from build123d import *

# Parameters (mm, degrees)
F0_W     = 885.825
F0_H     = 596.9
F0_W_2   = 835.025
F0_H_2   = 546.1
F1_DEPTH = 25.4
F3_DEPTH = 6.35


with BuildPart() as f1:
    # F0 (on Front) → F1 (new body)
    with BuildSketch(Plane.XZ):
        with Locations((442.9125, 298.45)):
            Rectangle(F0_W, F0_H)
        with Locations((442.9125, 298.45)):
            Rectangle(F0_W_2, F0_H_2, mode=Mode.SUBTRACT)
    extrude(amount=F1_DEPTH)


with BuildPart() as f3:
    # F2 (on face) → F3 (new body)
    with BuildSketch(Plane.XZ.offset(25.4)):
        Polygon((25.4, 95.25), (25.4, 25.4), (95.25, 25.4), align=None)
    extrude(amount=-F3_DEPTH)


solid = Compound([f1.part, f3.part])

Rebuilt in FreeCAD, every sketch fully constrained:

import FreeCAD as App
import Part
import Sketcher
from FreeCAD import Vector
Q = App.Units.Quantity

doc = App.newDocument("Part")
params = doc.addObject("Spreadsheet::Sheet", "Params")
for row, (alias, value) in enumerate([
    ("sketch1_height", "23.5 in"),
    ("sketch1_height2", "21.5 in"),
    ("sketch1_width", "34.875 in"),
    ("pad1_length", "1 in"),
    ("sketch2_width", "2.75 in"),
    ("pad2_length", "0.25 in"),
], start=1):
    params.set(f"A{row}", alias)
    params.set(f"B{row}", "=" + value)
    params.setAlias(f"B{row}", alias)

body = doc.addObject("PartDesign::Body", "Body")

sketch1 = body.newObject("Sketcher::SketchObject", "Sketch")
sketch1.AttachmentSupport = (doc.getObject("XZ_Plane"), [""])
sketch1.MapMode = "FlatFace"
sketch1.addGeometry(Part.LineSegment(Vector(0, 596.9, 0), Vector(0, 0, 0)), False)
sketch1.addGeometry(Part.LineSegment(Vector(0, 0, 0), Vector(885.825, 0, 0)), False)
sketch1.addGeometry(Part.LineSegment(Vector(885.825, 0, 0), Vector(885.825, 596.9, 0)), False)
sketch1.addGeometry(Part.LineSegment(Vector(885.825, 596.9, 0), Vector(0, 596.9, 0)), False)
sketch1.addGeometry(Part.LineSegment(Vector(860.425, 25.4, 0), Vector(25.4, 25.4, 0)), False)
sketch1.addGeometry(Part.LineSegment(Vector(25.4, 25.4, 0), Vector(25.4, 571.5, 0)), False)
sketch1.addGeometry(Part.LineSegment(Vector(25.4, 571.5, 0), Vector(860.425, 571.5, 0)), False)
sketch1.addGeometry(Part.LineSegment(Vector(860.425, 571.5, 0), Vector(860.425, 25.4, 0)), False)
sketch1.addConstraint(Sketcher.Constraint("Coincident", 0, 2, 1, 1))
sketch1.addConstraint(Sketcher.Constraint("Coincident", 1, 2, 2, 1))
sketch1.addConstraint(Sketcher.Constraint("Coincident", 2, 2, 3, 1))
sketch1.addConstraint(Sketcher.Constraint("Coincident", 3, 2, 0, 1))
sketch1.addConstraint(Sketcher.Constraint("Coincident", 4, 2, 5, 1))
sketch1.addConstraint(Sketcher.Constraint("Coincident", 5, 2, 6, 1))
sketch1.addConstraint(Sketcher.Constraint("Coincident", 6, 2, 7, 1))
sketch1.addConstraint(Sketcher.Constraint("Coincident", 7, 2, 4, 1))
sketch1.addConstraint(Sketcher.Constraint("Vertical", 0))
sketch1.addConstraint(Sketcher.Constraint("Horizontal", 1))
sketch1.addConstraint(Sketcher.Constraint("Vertical", 2))
sketch1.addConstraint(Sketcher.Constraint("Horizontal", 3))
sketch1.addConstraint(Sketcher.Constraint("Horizontal", 4))
sketch1.addConstraint(Sketcher.Constraint("Vertical", 5))
sketch1.addConstraint(Sketcher.Constraint("Horizontal", 6))
sketch1.addConstraint(Sketcher.Constraint("Vertical", 7))
sketch1.addConstraint(Sketcher.Constraint("Coincident", 0, 2, -1, 1))
sketch1.addConstraint(Sketcher.Constraint("DistanceY", 0, 2, 0, 1, Q("23.5 in")))
sketch1.addConstraint(Sketcher.Constraint("DistanceY", 5, 1, 5, 2, Q("21.5 in")))
sketch1.addConstraint(Sketcher.Constraint("DistanceX", -1, 1, 4, 2, Q("1 in")))
sketch1.addConstraint(Sketcher.Constraint("DistanceY", -1, 1, 4, 2, Q("1 in")))
sketch1.addConstraint(Sketcher.Constraint("DistanceX", 6, 2, 2, 2, Q("1 in")))
sketch1.addConstraint(Sketcher.Constraint("DistanceX", 1, 1, 1, 2, Q("34.875 in")))
sketch1.setExpression("Constraints[17]", "Params.sketch1_height")
sketch1.setExpression("Constraints[18]", "Params.sketch1_height2")
sketch1.setExpression("Constraints[22]", "Params.sketch1_width")
pad1 = body.newObject("PartDesign::Pad", "Pad")
pad1.Profile = sketch1
pad1.setExpression("Length", "Params.pad1_length")
body2 = doc.addObject("PartDesign::Body", "Body001")

sketch2 = body2.newObject("Sketcher::SketchObject", "Sketch001")
sketch2.AttachmentSupport = (doc.getObject("XZ_Plane001"), [""])
sketch2.MapMode = "FlatFace"
sketch2.AttachmentOffset = App.Placement(Vector(0, 0, 1 * 25.4), App.Rotation())
sketch2.addGeometry(Part.LineSegment(Vector(25.4, 95.25, 0), Vector(25.4, 25.4, 0)), False)
sketch2.addGeometry(Part.LineSegment(Vector(25.4, 25.4, 0), Vector(95.25, 25.4, 0)), False)
sketch2.addGeometry(Part.LineSegment(Vector(95.25, 25.4, 0), Vector(25.4, 95.25, 0)), False)
sketch2.addConstraint(Sketcher.Constraint("Coincident", 0, 2, 1, 1))
sketch2.addConstraint(Sketcher.Constraint("Coincident", 1, 2, 2, 1))
sketch2.addConstraint(Sketcher.Constraint("Coincident", 2, 2, 0, 1))
sketch2.addConstraint(Sketcher.Constraint("Vertical", 0))
sketch2.addConstraint(Sketcher.Constraint("Horizontal", 1))
sketch2.addConstraint(Sketcher.Constraint("Equal", 1, 0))
sketch2.addConstraint(Sketcher.Constraint("DistanceX", -1, 1, 0, 2, Q("1 in")))
sketch2.addConstraint(Sketcher.Constraint("DistanceY", -1, 1, 0, 2, Q("1 in")))
sketch2.addConstraint(Sketcher.Constraint("DistanceX", 1, 1, 1, 2, Q("2.75 in")))
sketch2.setExpression("Constraints[8]", "Params.sketch2_width")
pad2 = body2.newObject("PartDesign::Pad", "Pad001")
pad2.Profile = sketch2
pad2.setExpression("Length", "Params.pad2_length")
pad2.Reversed = True

doc.recompute()
